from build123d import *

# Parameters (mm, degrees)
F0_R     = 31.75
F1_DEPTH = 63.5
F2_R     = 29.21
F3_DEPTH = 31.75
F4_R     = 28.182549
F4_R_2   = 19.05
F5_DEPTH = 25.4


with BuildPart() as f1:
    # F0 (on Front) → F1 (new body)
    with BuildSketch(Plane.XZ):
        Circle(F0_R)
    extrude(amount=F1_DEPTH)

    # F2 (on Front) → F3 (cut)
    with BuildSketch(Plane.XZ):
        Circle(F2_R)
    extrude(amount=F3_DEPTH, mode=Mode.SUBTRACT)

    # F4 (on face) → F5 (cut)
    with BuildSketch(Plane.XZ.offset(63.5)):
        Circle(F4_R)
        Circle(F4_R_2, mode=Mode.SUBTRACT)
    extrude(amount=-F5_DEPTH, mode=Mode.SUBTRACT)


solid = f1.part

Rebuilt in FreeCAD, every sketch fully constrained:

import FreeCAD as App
import Part
import Sketcher
from FreeCAD import Vector
Q = App.Units.Quantity

doc = App.newDocument("Part")
body = doc.addObject("PartDesign::Body", "Body")

# Sketch on XZ plane
sketch1 = body.newObject("Sketcher::SketchObject", "Sketch")
sketch1.AttachmentSupport = (doc.getObject("XZ_Plane"), [""])
sketch1.MapMode = "FlatFace"
sketch1.addGeometry(Part.Circle(Vector(0, 0, 0), Vector(0, 0, 1), 32), False)
sketch1.addConstraint([
    Sketcher.Constraint("Coincident", 0, 3, -1, 1),
    Sketcher.Constraint("Diameter", 0, Q("2.5 in")),
])
pad1 = body.newObject("PartDesign::Pad", "Pad")
pad1.Profile = sketch1
pad1.Length = Q("2.5 in")

# Sketch on XZ plane
sketch2 = body.newObject("Sketcher::SketchObject", "Sketch001")
sketch2.AttachmentSupport = (doc.getObject("XZ_Plane"), [""])
sketch2.MapMode = "FlatFace"
sketch2.addGeometry(Part.Circle(Vector(0, 0, 0), Vector(0, 0, 1), 29), False)
sketch2.addConstraint([
    Sketcher.Constraint("Coincident", 0, 3, -1, 1),
    Sketcher.Constraint("Diameter", 0, Q("2.3 in")),
])
pocket1 = body.newObject("PartDesign::Pocket", "Pocket")
pocket1.Profile = sketch2
pocket1.Length = Q("1.25 in")
pocket1.Reversed = True

# Sketch on XZ plane
sketch3 = body.newObject("Sketcher::SketchObject", "Sketch002")
sketch3.AttachmentSupport = (doc.getObject("XZ_Plane"), [""])
sketch3.MapMode = "FlatFace"
sketch3.AttachmentOffset = App.Placement(Vector(0, 0, 2.5 * 25.4), App.Rotation())
sketch3.addGeometry([
    Part.Circle(Vector(0, 0, 0), Vector(0, 0, 1), 28),
    Part.Circle(Vector(0, 0, 0), Vector(0, 0, 1), 19),
], False)
sketch3.addConstraint([
    Sketcher.Constraint("Coincident", 0, 3, -1, 1),
    Sketcher.Constraint("Coincident", 1, 3, -1, 1),
    Sketcher.Constraint("Diameter", 1, Q("1.5 in")),
    Sketcher.Constraint("Diameter", 0, 56.365098),
])
pocket2 = body.newObject("PartDesign::Pocket", "Pocket001")
pocket2.Profile = sketch3
pocket2.Length = Q("1 in")

doc.recompute()
